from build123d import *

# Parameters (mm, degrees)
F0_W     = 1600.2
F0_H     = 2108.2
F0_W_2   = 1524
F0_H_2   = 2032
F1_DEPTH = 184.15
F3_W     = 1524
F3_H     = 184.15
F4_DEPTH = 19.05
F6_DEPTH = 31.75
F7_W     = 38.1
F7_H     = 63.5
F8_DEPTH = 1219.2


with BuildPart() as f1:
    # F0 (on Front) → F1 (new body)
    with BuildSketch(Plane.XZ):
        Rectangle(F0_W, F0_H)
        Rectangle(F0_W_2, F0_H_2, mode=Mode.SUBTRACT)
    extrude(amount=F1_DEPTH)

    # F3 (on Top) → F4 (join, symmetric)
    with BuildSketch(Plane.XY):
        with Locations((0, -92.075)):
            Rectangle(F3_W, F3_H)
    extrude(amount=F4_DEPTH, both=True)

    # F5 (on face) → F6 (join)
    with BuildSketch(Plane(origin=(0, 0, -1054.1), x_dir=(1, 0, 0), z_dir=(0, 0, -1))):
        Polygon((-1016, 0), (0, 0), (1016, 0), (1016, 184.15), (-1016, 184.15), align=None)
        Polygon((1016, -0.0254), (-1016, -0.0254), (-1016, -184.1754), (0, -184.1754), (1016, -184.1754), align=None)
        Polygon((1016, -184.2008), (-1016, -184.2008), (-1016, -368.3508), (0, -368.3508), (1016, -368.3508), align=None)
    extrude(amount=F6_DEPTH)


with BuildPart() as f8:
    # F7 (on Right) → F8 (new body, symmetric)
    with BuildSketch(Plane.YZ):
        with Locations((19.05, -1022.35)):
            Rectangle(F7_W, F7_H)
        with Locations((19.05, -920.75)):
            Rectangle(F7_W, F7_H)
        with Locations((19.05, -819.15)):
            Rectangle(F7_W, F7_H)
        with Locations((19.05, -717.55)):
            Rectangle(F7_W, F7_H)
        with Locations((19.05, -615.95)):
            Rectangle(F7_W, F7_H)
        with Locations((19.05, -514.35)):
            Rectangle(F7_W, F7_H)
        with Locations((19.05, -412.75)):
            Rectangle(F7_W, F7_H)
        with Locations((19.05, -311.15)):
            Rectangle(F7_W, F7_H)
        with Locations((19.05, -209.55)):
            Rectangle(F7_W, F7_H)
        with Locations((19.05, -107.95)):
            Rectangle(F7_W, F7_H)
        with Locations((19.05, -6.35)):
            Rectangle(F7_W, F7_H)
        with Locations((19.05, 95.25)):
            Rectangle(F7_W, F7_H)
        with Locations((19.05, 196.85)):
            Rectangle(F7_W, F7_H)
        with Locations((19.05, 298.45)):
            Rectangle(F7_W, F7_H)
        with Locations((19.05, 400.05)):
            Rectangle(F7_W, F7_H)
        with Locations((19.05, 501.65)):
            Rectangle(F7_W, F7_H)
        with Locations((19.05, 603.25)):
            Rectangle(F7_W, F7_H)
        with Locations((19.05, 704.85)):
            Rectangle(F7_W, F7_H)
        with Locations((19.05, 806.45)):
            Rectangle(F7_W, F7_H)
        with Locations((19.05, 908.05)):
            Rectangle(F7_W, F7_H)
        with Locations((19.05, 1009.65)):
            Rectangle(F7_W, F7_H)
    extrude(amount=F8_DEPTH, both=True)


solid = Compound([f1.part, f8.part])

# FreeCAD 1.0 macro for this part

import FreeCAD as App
import Part
import Sketcher

V = App.Vector
Q = App.Units.Quantity

doc = App.newDocument("Part")
body = doc.addObject("PartDesign::Body", "Body")
body.AllowCompound = True

sketch1 = doc.addObject("Sketcher::SketchObject", "Sketch")
body.addObject(sketch1)
sketch1.AttachmentSupport = (doc.XZ_Plane, [""])
sketch1.MapMode = "FlatFace"
sketch1.addGeometry(Part.LineSegment(V(-800.1, 1054.1, 0), V(-800.1, -1054.1, 0)), False)
sketch1.addGeometry(Part.LineSegment(V(-800.1, -1054.1, 0), V(800.1, -1054.1, 0)), False)
sketch1.addGeometry(Part.LineSegment(V(800.1, -1054.1, 0), V(800.1, 1054.1, 0)), False)
sketch1.addGeometry(Part.LineSegment(V(800.1, 1054.1, 0), V(-800.1, 1054.1, 0)), False)
sketch1.addGeometry(Part.LineSegment(V(762, -1016, 0), V(-762, -1016, 0)), False)
sketch1.addGeometry(Part.LineSegment(V(-762, -1016, 0), V(-762, 1016, 0)), False)
sketch1.addGeometry(Part.LineSegment(V(-762, 1016, 0), V(762, 1016, 0)), False)
sketch1.addGeometry(Part.LineSegment(V(762, 1016, 0), V(762, -1016, 0)), False)
sketch1.addConstraint(Sketcher.Constraint("Coincident", 0, 2, 1, 1))
sketch1.addConstraint(Sketcher.Constraint("Coincident", 1, 2, 2, 1))
sketch1.addConstraint(Sketcher.Constraint("Coincident", 2, 2, 3, 1))
sketch1.addConstraint(Sketcher.Constraint("Coincident", 3, 2, 0, 1))
sketch1.addConstraint(Sketcher.Constraint("Coincident", 4, 2, 5, 1))
sketch1.addConstraint(Sketcher.Constraint("Coincident", 5, 2, 6, 1))
sketch1.addConstraint(Sketcher.Constraint("Coincident", 6, 2, 7, 1))
sketch1.addConstraint(Sketcher.Constraint("Coincident", 7, 2, 4, 1))
sketch1.addConstraint(Sketcher.Constraint("Vertical", 0))
sketch1.addConstraint(Sketcher.Constraint("Horizontal", 1))
sketch1.addConstraint(Sketcher.Constraint("Vertical", 2))
sketch1.addConstraint(Sketcher.Constraint("Horizontal", 3))
sketch1.addConstraint(Sketcher.Constraint("Horizontal", 4))
sketch1.addConstraint(Sketcher.Constraint("Vertical", 5))
sketch1.addConstraint(Sketcher.Constraint("Horizontal", 6))
sketch1.addConstraint(Sketcher.Constraint("Vertical", 7))
sketch1.addConstraint(Sketcher.Constraint("Symmetric", 0, 2, 2, 2, -1, 1))
sketch1.addConstraint(Sketcher.Constraint("Symmetric", 4, 2, 6, 2, -1, 1))
sketch1.addConstraint(Sketcher.Constraint("DistanceX", 1, 1, 1, 2, Q("63 in")))
sketch1.addConstraint(Sketcher.Constraint("DistanceX", 4, 2, 4, 1, Q("60 in")))
sketch1.addConstraint(Sketcher.Constraint("DistanceY", 0, 2, 0, 1, Q("83 in")))
sketch1.addConstraint(Sketcher.Constraint("DistanceY", 5, 1, 5, 2, Q("80 in")))
pad1 = doc.addObject("PartDesign::Pad", "Pad")
body.addObject(pad1)
pad1.Profile = sketch1
pad1.Length = Q("7.25 in")

sketch2 = doc.addObject("Sketcher::SketchObject", "Sketch001")
body.addObject(sketch2)
sketch2.AttachmentSupport = (doc.XY_Plane, [""])
sketch2.MapMode = "FlatFace"
sketch2.addGeometry(Part.LineSegment(V(-762, 0, 0), V(-762, -184.15, 0)), False)
sketch2.addGeometry(Part.LineSegment(V(-762, -184.15, 0), V(762, -184.15, 0)), False)
sketch2.addGeometry(Part.LineSegment(V(762, -184.15, 0), V(762, 0, 0)), False)
sketch2.addGeometry(Part.LineSegment(V(762, 0, 0), V(-762, 0, 0)), False)
sketch2.addConstraint(Sketcher.Constraint("Coincident", 0, 2, 1, 1))
sketch2.addConstraint(Sketcher.Constraint("Coincident", 1, 2, 2, 1))
sketch2.addConstraint(Sketcher.Constraint("Coincident", 2, 2, 3, 1))
sketch2.addConstraint(Sketcher.Constraint("Coincident", 3, 2, 0, 1))
sketch2.addConstraint(Sketcher.Constraint("Vertical", 0))
sketch2.addConstraint(Sketcher.Constraint("Horizontal", 1))
sketch2.addConstraint(Sketcher.Constraint("Vertical", 2))
sketch2.addConstraint(Sketcher.Constraint("Horizontal", 3))
sketch2.addConstraint(Sketcher.Constraint("Symmetric", 2, 2, 3, 2, -1, 1))
sketch2.addConstraint(Sketcher.Constraint("DistanceX", 1, 1, 1, 2, Q("60 in")))
sketch2.addConstraint(Sketcher.Constraint("DistanceY", 0, 2, 0, 1, Q("7.25 in")))
pad2 = doc.addObject("PartDesign::Pad", "Pad001")
body.addObject(pad2)
pad2.Profile = sketch2
pad2.Length = Q("1.5 in")
pad2.Midplane = True

sketch3 = doc.addObject("Sketcher::SketchObject", "Sketch002")
body.addObject(sketch3)
sketch3.AttachmentSupport = (doc.XY_Plane, [""])
sketch3.MapMode = "FlatFace"
sketch3.AttachmentOffset = App.Placement(V(0, 0, -41.5 * 25.4), App.Rotation())
sketch3.addGeometry(Part.LineSegment(V(-1016, 0, 0), V(1016, 0, 0)), False)
sketch3.addGeometry(Part.LineSegment(V(1016, 0, 0), V(1016, -184.15, 0)), False)
sketch3.addGeometry(Part.LineSegment(V(1016, -184.15, 0), V(-1016, -184.15, 0)), False)
sketch3.addGeometry(Part.LineSegment(V(-1016, -184.15, 0), V(-1016, 0, 0)), False)
sketch3.addGeometry(Part.LineSegment(V(1016, 0.0254, 0), V(-1016, 0.0254, 0)), False)
sketch3.addGeometry(Part.LineSegment(V(-1016, 0.0254, 0), V(-1016, 184.1754, 0)), False)
sketch3.addGeometry(Part.LineSegment(V(-1016, 184.1754, 0), V(1016, 184.1754, 0)), False)
sketch3.addGeometry(Part.LineSegment(V(1016, 184.1754, 0), V(1016, 0.0254, 0)), False)
sketch3.addGeometry(Part.LineSegment(V(1016, 184.2008, 0), V(-1016, 184.2008, 0)), False)
sketch3.addGeometry(Part.LineSegment(V(-1016, 184.2008, 0), V(-1016, 368.3508, 0)), False)
sketch3.addGeometry(Part.LineSegment(V(-1016, 368.3508, 0), V(1016, 368.3508, 0)), False)
sketch3.addGeometry(Part.LineSegment(V(1016, 368.3508, 0), V(1016, 184.2008, 0)), False)
sketch3.addConstraint(Sketcher.Constraint("Coincident", 0, 2, 1, 1))
sketch3.addConstraint(Sketcher.Constraint("Coincident", 1, 2, 2, 1))
sketch3.addConstraint(Sketcher.Constraint("Coincident", 2, 2, 3, 1))
sketch3.addConstraint(Sketcher.Constraint("Coincident", 3, 2, 0, 1))
sketch3.addConstraint(Sketcher.Constraint("Coincident", 4, 2, 5, 1))
sketch3.addConstraint(Sketcher.Constraint("Coincident", 5, 2, 6, 1))
sketch3.addConstraint(Sketcher.Constraint("Coincident", 6, 2, 7, 1))
sketch3.addConstraint(Sketcher.Constraint("Coincident", 7, 2, 4, 1))
sketch3.addConstraint(Sketcher.Constraint("Coincident", 8, 2, 9, 1))
sketch3.addConstraint(Sketcher.Constraint("Coincident", 9, 2, 10, 1))
sketch3.addConstraint(Sketcher.Constraint("Coincident", 10, 2, 11, 1))
sketch3.addConstraint(Sketcher.Constraint("Coincident", 11, 2, 8, 1))
sketch3.addConstraint(Sketcher.Constraint("Horizontal", 0))
sketch3.addConstraint(Sketcher.Constraint("Vertical", 1))
sketch3.addConstraint(Sketcher.Constraint("Horizontal", 2))
sketch3.addConstraint(Sketcher.Constraint("Vertical", 3))
sketch3.addConstraint(Sketcher.Constraint("Horizontal", 4))
sketch3.addConstraint(Sketcher.Constraint("Vertical", 5))
sketch3.addConstraint(Sketcher.Constraint("Horizontal", 6))
sketch3.addConstraint(Sketcher.Constraint("Vertical", 7))
sketch3.addConstraint(Sketcher.Constraint("Horizontal", 8))
sketch3.addConstraint(Sketcher.Constraint("Vertical", 9))
sketch3.addConstraint(Sketcher.Constraint("Horizontal", 10))
sketch3.addConstraint(Sketcher.Constraint("Vertical", 11))
sketch3.addConstraint(Sketcher.Constraint("Symmetric", 0, 2, 3, 2, -1, 1))
sketch3.addConstraint(Sketcher.Constraint("Vertical", 3, 2, 4, 2))
sketch3.addConstraint(Sketcher.Constraint("Vertical", 1, 2, 6, 2))
sketch3.addConstraint(Sketcher.Constraint("Vertical", 5, 2, 8, 2))
sketch3.addConstraint(Sketcher.Constraint("Vertical", 7, 2, 10, 2))
sketch3.addConstraint(Sketcher.Constraint("Equal", 3, 5))
sketch3.addConstraint(Sketcher.Constraint("Equal", 7, 9))
sketch3.addConstraint(Sketcher.Constraint("DistanceX", 0, 1, 0, 2, Q("80 in")))
sketch3.addConstraint(Sketcher.Constraint("DistanceY", 1, 2, 1, 1, Q("7.25 in")))
sketch3.addConstraint(Sketcher.Constraint("DistanceY", -1, 1, 4, 2, Q("0.001 in")))
sketch3.addConstraint(Sketcher.Constraint("DistanceY", -1, 1, 8, 2, Q("7.252 in")))
pad3 = doc.addObject("PartDesign::Pad", "Pad002")
body.addObject(pad3)
pad3.Profile = sketch3
pad3.Length = Q("1.25 in")
pad3.Reversed = True
body2 = doc.addObject("PartDesign::Body", "Body001")
body2.AllowCompound = True

sketch4 = doc.addObject("Sketcher::SketchObject", "Sketch003")
body2.addObject(sketch4)
sketch4.AttachmentSupport = (doc.getObject("YZ_Plane001"), [""])
sketch4.MapMode = "FlatFace"
sketch4.addGeometry(Part.LineSegment(V(0, -990.6, 0), V(0, -1054.1, 0)), False)
sketch4.addGeometry(Part.LineSegment(V(0, -1054.1, 0), V(38.1, -1054.1, 0)), False)
sketch4.addGeometry(Part.LineSegment(V(38.1, -1054.1, 0), V(38.1, -990.6, 0)), False)
sketch4.addGeometry(Part.LineSegment(V(38.1, -990.6, 0), V(0, -990.6, 0)), False)
sketch4.addGeometry(Part.LineSegment(V(0, -889, 0), V(0, -952.5, 0)), False)
sketch4.addGeometry(Part.LineSegment(V(0, -952.5, 0), V(38.1, -952.5, 0)), False)
sketch4.addGeometry(Part.LineSegment(V(38.1, -952.5, 0), V(38.1, -889, 0)), False)
sketch4.addGeometry(Part.LineSegment(V(38.1, -889, 0), V(0, -889, 0)), False)
sketch4.addGeometry(Part.LineSegment(V(0, -787.4, 0), V(0, -850.9, 0)), False)
sketch4.addGeometry(Part.LineSegment(V(0, -850.9, 0), V(38.1, -850.9, 0)), False)
sketch4.addGeometry(Part.LineSegment(V(38.1, -850.9, 0), V(38.1, -787.4, 0)), False)
sketch4.addGeometry(Part.LineSegment(V(38.1, -787.4, 0), V(0, -787.4, 0)), False)
sketch4.addGeometry(Part.LineSegment(V(0, -685.8, 0), V(0, -749.3, 0)), False)
sketch4.addGeometry(Part.LineSegment(V(0, -749.3, 0), V(38.1, -749.3, 0)), False)
sketch4.addGeometry(Part.LineSegment(V(38.1, -749.3, 0), V(38.1, -685.8, 0)), False)
sketch4.addGeometry(Part.LineSegment(V(38.1, -685.8, 0), V(0, -685.8, 0)), False)
sketch4.addGeometry(Part.LineSegment(V(0, -584.2, 0), V(0, -647.7, 0)), False)
sketch4.addGeometry(Part.LineSegment(V(0, -647.7, 0), V(38.1, -647.7, 0)), False)
sketch4.addGeometry(Part.LineSegment(V(38.1, -647.7, 0), V(38.1, -584.2, 0)), False)
sketch4.addGeometry(Part.LineSegment(V(38.1, -584.2, 0), V(0, -584.2, 0)), False)
sketch4.addGeometry(Part.LineSegment(V(0, -482.6, 0), V(0, -546.1, 0)), False)
sketch4.addGeometry(Part.LineSegment(V(0, -546.1, 0), V(38.1, -546.1, 0)), False)
sketch4.addGeometry(Part.LineSegment(V(38.1, -546.1, 0), V(38.1, -482.6, 0)), False)
sketch4.addGeometry(Part.LineSegment(V(38.1, -482.6, 0), V(0, -482.6, 0)), False)
sketch4.addGeometry(Part.LineSegment(V(0, -381, 0), V(0, -444.5, 0)), False)
sketch4.addGeometry(Part.LineSegment(V(0, -444.5, 0), V(38.1, -444.5, 0)), False)
sketch4.addGeometry(Part.LineSegment(V(38.1, -444.5, 0), V(38.1, -381, 0)), False)
sketch4.addGeometry(Part.LineSegment(V(38.1, -381, 0), V(0, -381, 0)), False)
sketch4.addGeometry(Part.LineSegment(V(0, -279.4, 0), V(0, -342.9, 0)), False)
sketch4.addGeometry(Part.LineSegment(V(0, -342.9, 0), V(38.1, -342.9, 0)), False)
sketch4.addGeometry(Part.LineSegment(V(38.1, -342.9, 0), V(38.1, -279.4, 0)), False)
sketch4.addGeometry(Part.LineSegment(V(38.1, -279.4, 0), V(0, -279.4, 0)), False)
sketch4.addGeometry(Part.LineSegment(V(0, -177.8, 0), V(0, -241.3, 0)), False)
sketch4.addGeometry(Part.LineSegment(V(0, -241.3, 0), V(38.1, -241.3, 0)), False)
sketch4.addGeometry(Part.LineSegment(V(38.1, -241.3, 0), V(38.1, -177.8, 0)), False)
sketch4.addGeometry(Part.LineSegment(V(38.1, -177.8, 0), V(0, -177.8, 0)), False)
sketch4.addGeometry(Part.LineSegment(V(0, -76.2, 0), V(0, -139.7, 0)), False)
sketch4.addGeometry(Part.LineSegment(V(0, -139.7, 0), V(38.1, -139.7, 0)), False)
sketch4.addGeometry(Part.LineSegment(V(38.1, -139.7, 0), V(38.1, -76.2, 0)), False)
sketch4.addGeometry(Part.LineSegment(V(38.1, -76.2, 0), V(0, -76.2, 0)), False)
sketch4.addGeometry(Part.LineSegment(V(0, 25.4, 0), V(0, -38.1, 0)), False)
sketch4.addGeometry(Part.LineSegment(V(0, -38.1, 0), V(38.1, -38.1, 0)), False)
sketch4.addGeometry(Part.LineSegment(V(38.1, -38.1, 0), V(38.1, 25.4, 0)), False)
sketch4.addGeometry(Part.LineSegment(V(38.1, 25.4, 0), V(0, 25.4, 0)), False)
sketch4.addGeometry(Part.LineSegment(V(0, 127, 0), V(0, 63.5, 0)), False)
sketch4.addGeometry(Part.LineSegment(V(0, 63.5, 0), V(38.1, 63.5, 0)), False)
sketch4.addGeometry(Part.LineSegment(V(38.1, 63.5, 0), V(38.1, 127, 0)), False)
sketch4.addGeometry(Part.LineSegment(V(38.1, 127, 0), V(0, 127, 0)), False)
sketch4.addGeometry(Part.LineSegment(V(0, 228.6, 0), V(0, 165.1, 0)), False)
sketch4.addGeometry(Part.LineSegment(V(0, 165.1, 0), V(38.1, 165.1, 0)), False)
sketch4.addGeometry(Part.LineSegment(V(38.1, 165.1, 0), V(38.1, 228.6, 0)), False)
sketch4.addGeometry(Part.LineSegment(V(38.1, 228.6, 0), V(0, 228.6, 0)), False)
sketch4.addGeometry(Part.LineSegment(V(0, 330.2, 0), V(0, 266.7, 0)), False)
sketch4.addGeometry(Part.LineSegment(V(0, 266.7, 0), V(38.1, 266.7, 0)), False)
sketch4.addGeometry(Part.LineSegment(V(38.1, 266.7, 0), V(38.1, 330.2, 0)), False)
sketch4.addGeometry(Part.LineSegment(V(38.1, 330.2, 0), V(0, 330.2, 0)), False)
sketch4.addGeometry(Part.LineSegment(V(0, 431.8, 0), V(0, 368.3, 0)), False)
sketch4.addGeometry(Part.LineSegment(V(0, 368.3, 0), V(38.1, 368.3, 0)), False)
sketch4.addGeometry(Part.LineSegment(V(38.1, 368.3, 0), V(38.1, 431.8, 0)), False)
sketch4.addGeometry(Part.LineSegment(V(38.1, 431.8, 0), V(0, 431.8, 0)), False)
sketch4.addGeometry(Part.LineSegment(V(0, 533.4, 0), V(0, 469.9, 0)), False)
sketch4.addGeometry(Part.LineSegment(V(0, 469.9, 0), V(38.1, 469.9, 0)), False)
sketch4.addGeometry(Part.LineSegment(V(38.1, 469.9, 0), V(38.1, 533.4, 0)), False)
sketch4.addGeometry(Part.LineSegment(V(38.1, 533.4, 0), V(0, 533.4, 0)), False)
sketch4.addGeometry(Part.LineSegment(V(0, 635, 0), V(0, 571.5, 0)), False)
sketch4.addGeometry(Part.LineSegment(V(0, 571.5, 0), V(38.1, 571.5, 0)), False)
sketch4.addGeometry(Part.LineSegment(V(38.1, 571.5, 0), V(38.1, 635, 0)), False)
sketch4.addGeometry(Part.LineSegment(V(38.1, 635, 0), V(0, 635, 0)), False)
sketch4.addGeometry(Part.LineSegment(V(0, 736.6, 0), V(0, 673.1, 0)), False)
sketch4.addGeometry(Part.LineSegment(V(0, 673.1, 0), V(38.1, 673.1, 0)), False)
sketch4.addGeometry(Part.LineSegment(V(38.1, 673.1, 0), V(38.1, 736.6, 0)), False)
sketch4.addGeometry(Part.LineSegment(V(38.1, 736.6, 0), V(0, 736.6, 0)), False)
sketch4.addGeometry(Part.LineSegment(V(0, 838.2, 0), V(0, 774.7, 0)), False)
sketch4.addGeometry(Part.LineSegment(V(0, 774.7, 0), V(38.1, 774.7, 0)), False)
sketch4.addGeometry(Part.LineSegment(V(38.1, 774.7, 0), V(38.1, 838.2, 0)), False)
sketch4.addGeometry(Part.LineSegment(V(38.1, 838.2, 0), V(0, 838.2, 0)), False)
sketch4.addGeometry(Part.LineSegment(V(0, 939.8, 0), V(0, 876.3, 0)), False)
sketch4.addGeometry(Part.LineSegment(V(0, 876.3, 0), V(38.1, 876.3, 0)), False)
sketch4.addGeometry(Part.LineSegment(V(38.1, 876.3, 0), V(38.1, 939.8, 0)), False)
sketch4.addGeometry(Part.LineSegment(V(38.1, 939.8, 0), V(0, 939.8, 0)), False)
sketch4.addGeometry(Part.LineSegment(V(0, 1041.4, 0), V(0, 977.9, 0)), False)
sketch4.addGeometry(Part.LineSegment(V(0, 977.9, 0), V(38.1, 977.9, 0)), False)
sketch4.addGeometry(Part.LineSegment(V(38.1, 977.9, 0), V(38.1, 1041.4, 0)), False)
sketch4.addGeometry(Part.LineSegment(V(38.1, 1041.4, 0), V(0, 1041.4, 0)), False)
sketch4.addConstraint(Sketcher.Constraint("Coincident", 0, 2, 1, 1))
sketch4.addConstraint(Sketcher.Constraint("Coincident", 1, 2, 2, 1))
sketch4.addConstraint(Sketcher.Constraint("Coincident", 2, 2, 3, 1))
sketch4.addConstraint(Sketcher.Constraint("Coincident", 3, 2, 0, 1))
sketch4.addConstraint(Sketcher.Constraint("Coincident", 4, 2, 5, 1))
sketch4.addConstraint(Sketcher.Constraint("Coincident", 5, 2, 6, 1))
sketch4.addConstraint(Sketcher.Constraint("Coincident", 6, 2, 7, 1))
sketch4.addConstraint(Sketcher.Constraint("Coincident", 7, 2, 4, 1))
sketch4.addConstraint(Sketcher.Constraint("Coincident", 8, 2, 9, 1))
sketch4.addConstraint(Sketcher.Constraint("Coincident", 9, 2, 10, 1))
sketch4.addConstraint(Sketcher.Constraint("Coincident", 10, 2, 11, 1))
sketch4.addConstraint(Sketcher.Constraint("Coincident", 11, 2, 8, 1))
sketch4.addConstraint(Sketcher.Constraint("Coincident", 12, 2, 13, 1))
sketch4.addConstraint(Sketcher.Constraint("Coincident", 13, 2, 14, 1))
sketch4.addConstraint(Sketcher.Constraint("Coincident", 14, 2, 15, 1))
sketch4.addConstraint(Sketcher.Constraint("Coincident", 15, 2, 12, 1))
sketch4.addConstraint(Sketcher.Constraint("Coincident", 16, 2, 17, 1))
sketch4.addConstraint(Sketcher.Constraint("Coincident", 17, 2, 18, 1))
sketch4.addConstraint(Sketcher.Constraint("Coincident", 18, 2, 19, 1))
sketch4.addConstraint(Sketcher.Constraint("Coincident", 19, 2, 16, 1))
sketch4.addConstraint(Sketcher.Constraint("Coincident", 20, 2, 21, 1))
sketch4.addConstraint(Sketcher.Constraint("Coincident", 21, 2, 22, 1))
sketch4.addConstraint(Sketcher.Constraint("Coincident", 22, 2, 23, 1))
sketch4.addConstraint(Sketcher.Constraint("Coincident", 23, 2, 20, 1))
sketch4.addConstraint(Sketcher.Constraint("Coincident", 24, 2, 25, 1))
sketch4.addConstraint(Sketcher.Constraint("Coincident", 25, 2, 26, 1))
sketch4.addConstraint(Sketcher.Constraint("Coincident", 26, 2, 27, 1))
sketch4.addConstraint(Sketcher.Constraint("Coincident", 27, 2, 24, 1))
sketch4.addConstraint(Sketcher.Constraint("Coincident", 28, 2, 29, 1))
sketch4.addConstraint(Sketcher.Constraint("Coincident", 29, 2, 30, 1))
sketch4.addConstraint(Sketcher.Constraint("Coincident", 30, 2, 31, 1))
sketch4.addConstraint(Sketcher.Constraint("Coincident", 31, 2, 28, 1))
sketch4.addConstraint(Sketcher.Constraint("Coincident", 32, 2, 33, 1))
sketch4.addConstraint(Sketcher.Constraint("Coincident", 33, 2, 34, 1))
sketch4.addConstraint(Sketcher.Constraint("Coincident", 34, 2, 35, 1))
sketch4.addConstraint(Sketcher.Constraint("Coincident", 35, 2, 32, 1))
sketch4.addConstraint(Sketcher.Constraint("Coincident", 36, 2, 37, 1))
sketch4.addConstraint(Sketcher.Constraint("Coincident", 37, 2, 38, 1))
sketch4.addConstraint(Sketcher.Constraint("Coincident", 38, 2, 39, 1))
sketch4.addConstraint(Sketcher.Constraint("Coincident", 39, 2, 36, 1))
sketch4.addConstraint(Sketcher.Constraint("Coincident", 40, 2, 41, 1))
sketch4.addConstraint(Sketcher.Constraint("Coincident", 41, 2, 42, 1))
sketch4.addConstraint(Sketcher.Constraint("Coincident", 42, 2, 43, 1))
sketch4.addConstraint(Sketcher.Constraint("Coincident", 43, 2, 40, 1))
sketch4.addConstraint(Sketcher.Constraint("Coincident", 44, 2, 45, 1))
sketch4.addConstraint(Sketcher.Constraint("Coincident", 45, 2, 46, 1))
sketch4.addConstraint(Sketcher.Constraint("Coincident", 46, 2, 47, 1))
sketch4.addConstraint(Sketcher.Constraint("Coincident", 47, 2, 44, 1))
sketch4.addConstraint(Sketcher.Constraint("Coincident", 48, 2, 49, 1))
sketch4.addConstraint(Sketcher.Constraint("Coincident", 49, 2, 50, 1))
sketch4.addConstraint(Sketcher.Constraint("Coincident", 50, 2, 51, 1))
sketch4.addConstraint(Sketcher.Constraint("Coincident", 51, 2, 48, 1))
sketch4.addConstraint(Sketcher.Constraint("Coincident", 52, 2, 53, 1))
sketch4.addConstraint(Sketcher.Constraint("Coincident", 53, 2, 54, 1))
sketch4.addConstraint(Sketcher.Constraint("Coincident", 54, 2, 55, 1))
sketch4.addConstraint(Sketcher.Constraint("Coincident", 55, 2, 52, 1))
sketch4.addConstraint(Sketcher.Constraint("Coincident", 56, 2, 57, 1))
sketch4.addConstraint(Sketcher.Constraint("Coincident", 57, 2, 58, 1))
sketch4.addConstraint(Sketcher.Constraint("Coincident", 58, 2, 59, 1))
sketch4.addConstraint(Sketcher.Constraint("Coincident", 59, 2, 56, 1))
sketch4.addConstraint(Sketcher.Constraint("Coincident", 60, 2, 61, 1))
sketch4.addConstraint(Sketcher.Constraint("Coincident", 61, 2, 62, 1))
sketch4.addConstraint(Sketcher.Constraint("Coincident", 62, 2, 63, 1))
sketch4.addConstraint(Sketcher.Constraint("Coincident", 63, 2, 60, 1))
sketch4.addConstraint(Sketcher.Constraint("Coincident", 64, 2, 65, 1))
sketch4.addConstraint(Sketcher.Constraint("Coincident", 65, 2, 66, 1))
sketch4.addConstraint(Sketcher.Constraint("Coincident", 66, 2, 67, 1))
sketch4.addConstraint(Sketcher.Constraint("Coincident", 67, 2, 64, 1))
sketch4.addConstraint(Sketcher.Constraint("Coincident", 68, 2, 69, 1))
sketch4.addConstraint(Sketcher.Constraint("Coincident", 69, 2, 70, 1))
sketch4.addConstraint(Sketcher.Constraint("Coincident", 70, 2, 71, 1))
sketch4.addConstraint(Sketcher.Constraint("Coincident", 71, 2, 68, 1))
sketch4.addConstraint(Sketcher.Constraint("Coincident", 72, 2, 73, 1))
sketch4.addConstraint(Sketcher.Constraint("Coincident", 73, 2, 74, 1))
sketch4.addConstraint(Sketcher.Constraint("Coincident", 74, 2, 75, 1))
sketch4.addConstraint(Sketcher.Constraint("Coincident", 75, 2, 72, 1))
sketch4.addConstraint(Sketcher.Constraint("Coincident", 76, 2, 77, 1))
sketch4.addConstraint(Sketcher.Constraint("Coincident", 77, 2, 78, 1))
sketch4.addConstraint(Sketcher.Constraint("Coincident", 78, 2, 79, 1))
sketch4.addConstraint(Sketcher.Constraint("Coincident", 79, 2, 76, 1))
sketch4.addConstraint(Sketcher.Constraint("Coincident", 80, 2, 81, 1))
sketch4.addConstraint(Sketcher.Constraint("Coincident", 81, 2, 82, 1))
sketch4.addConstraint(Sketcher.Constraint("Coincident", 82, 2, 83, 1))
sketch4.addConstraint(Sketcher.Constraint("Coincident", 83, 2, 80, 1))
sketch4.addConstraint(Sketcher.Constraint("Vertical", 0))
sketch4.addConstraint(Sketcher.Constraint("Horizontal", 1))
sketch4.addConstraint(Sketcher.Constraint("Vertical", 2))
sketch4.addConstraint(Sketcher.Constraint("Horizontal", 3))
sketch4.addConstraint(Sketcher.Constraint("Vertical", 4))
sketch4.addConstraint(Sketcher.Constraint("Horizontal", 5))
sketch4.addConstraint(Sketcher.Constraint("Vertical", 6))
sketch4.addConstraint(Sketcher.Constraint("Horizontal", 7))
sketch4.addConstraint(Sketcher.Constraint("Vertical", 8))
sketch4.addConstraint(Sketcher.Constraint("Horizontal", 9))
sketch4.addConstraint(Sketcher.Constraint("Vertical", 10))
sketch4.addConstraint(Sketcher.Constraint("Horizontal", 11))
sketch4.addConstraint(Sketcher.Constraint("Vertical", 12))
sketch4.addConstraint(Sketcher.Constraint("Horizontal", 13))
sketch4.addConstraint(Sketcher.Constraint("Vertical", 14))
sketch4.addConstraint(Sketcher.Constraint("Horizontal", 15))
sketch4.addConstraint(Sketcher.Constraint("Vertical", 16))
sketch4.addConstraint(Sketcher.Constraint("Horizontal", 17))
sketch4.addConstraint(Sketcher.Constraint("Vertical", 18))
sketch4.addConstraint(Sketcher.Constraint("Horizontal", 19))
sketch4.addConstraint(Sketcher.Constraint("Vertical", 20))
sketch4.addConstraint(Sketcher.Constraint("Horizontal", 21))
sketch4.addConstraint(Sketcher.Constraint("Vertical", 22))
sketch4.addConstraint(Sketcher.Constraint("Horizontal", 23))
sketch4.addConstraint(Sketcher.Constraint("Vertical", 24))
sketch4.addConstraint(Sketcher.Constraint("Horizontal", 25))
sketch4.addConstraint(Sketcher.Constraint("Vertical", 26))
sketch4.addConstraint(Sketcher.Constraint("Horizontal", 27))
sketch4.addConstraint(Sketcher.Constraint("Vertical", 28))
sketch4.addConstraint(Sketcher.Constraint("Horizontal", 29))
sketch4.addConstraint(Sketcher.Constraint("Vertical", 30))
sketch4.addConstraint(Sketcher.Constraint("Horizontal", 31))
sketch4.addConstraint(Sketcher.Constraint("Vertical", 32))
sketch4.addConstraint(Sketcher.Constraint("Horizontal", 33))
sketch4.addConstraint(Sketcher.Constraint("Vertical", 34))
sketch4.addConstraint(Sketcher.Constraint("Horizontal", 35))
sketch4.addConstraint(Sketcher.Constraint("Vertical", 36))
sketch4.addConstraint(Sketcher.Constraint("Horizontal", 37))
sketch4.addConstraint(Sketcher.Constraint("Vertical", 38))
sketch4.addConstraint(Sketcher.Constraint("Horizontal", 39))
sketch4.addConstraint(Sketcher.Constraint("Vertical", 40))
sketch4.addConstraint(Sketcher.Constraint("Horizontal", 41))
sketch4.addConstraint(Sketcher.Constraint("Vertical", 42))
sketch4.addConstraint(Sketcher.Constraint("Horizontal", 43))
sketch4.addConstraint(Sketcher.Constraint("Vertical", 44))
sketch4.addConstraint(Sketcher.Constraint("Horizontal", 45))
sketch4.addConstraint(Sketcher.Constraint("Vertical", 46))
sketch4.addConstraint(Sketcher.Constraint("Horizontal", 47))
sketch4.addConstraint(Sketcher.Constraint("Vertical", 48))
sketch4.addConstraint(Sketcher.Constraint("Horizontal", 49))
sketch4.addConstraint(Sketcher.Constraint("Vertical", 50))
sketch4.addConstraint(Sketcher.Constraint("Horizontal", 51))
sketch4.addConstraint(Sketcher.Constraint("Vertical", 52))
sketch4.addConstraint(Sketcher.Constraint("Horizontal", 53))
sketch4.addConstraint(Sketcher.Constraint("Vertical", 54))
sketch4.addConstraint(Sketcher.Constraint("Horizontal", 55))
sketch4.addConstraint(Sketcher.Constraint("Vertical", 56))
sketch4.addConstraint(Sketcher.Constraint("Horizontal", 57))
sketch4.addConstraint(Sketcher.Constraint("Vertical", 58))
sketch4.addConstraint(Sketcher.Constraint("Horizontal", 59))
sketch4.addConstraint(Sketcher.Constraint("Vertical", 60))
sketch4.addConstraint(Sketcher.Constraint("Horizontal", 61))
sketch4.addConstraint(Sketcher.Constraint("Vertical", 62))
sketch4.addConstraint(Sketcher.Constraint("Horizontal", 63))
sketch4.addConstraint(Sketcher.Constraint("Vertical", 64))
sketch4.addConstraint(Sketcher.Constraint("Horizontal", 65))
sketch4.addConstraint(Sketcher.Constraint("Vertical", 66))
sketch4.addConstraint(Sketcher.Constraint("Horizontal", 67))
sketch4.addConstraint(Sketcher.Constraint("Vertical", 68))
sketch4.addConstraint(Sketcher.Constraint("Horizontal", 69))
sketch4.addConstraint(Sketcher.Constraint("Vertical", 70))
sketch4.addConstraint(Sketcher.Constraint("Horizontal", 71))
sketch4.addConstraint(Sketcher.Constraint("Vertical", 72))
sketch4.addConstraint(Sketcher.Constraint("Horizontal", 73))
sketch4.addConstraint(Sketcher.Constraint("Vertical", 74))
sketch4.addConstraint(Sketcher.Constraint("Horizontal", 75))
sketch4.addConstraint(Sketcher.Constraint("Vertical", 76))
sketch4.addConstraint(Sketcher.Constraint("Horizontal", 77))
sketch4.addConstraint(Sketcher.Constraint("Vertical", 78))
sketch4.addConstraint(Sketcher.Constraint("Horizontal", 79))
sketch4.addConstraint(Sketcher.Constraint("Vertical", 80))
sketch4.addConstraint(Sketcher.Constraint("Horizontal", 81))
sketch4.addConstraint(Sketcher.Constraint("Vertical", 82))
sketch4.addConstraint(Sketcher.Constraint("Horizontal", 83))
sketch4.addConstraint(Sketcher.Constraint("PointOnObject", 0, 2, -2))
sketch4.addConstraint(Sketcher.Constraint("PointOnObject", 4, 2, -2))
sketch4.addConstraint(Sketcher.Constraint("PointOnObject", 8, 2, -2))
sketch4.addConstraint(Sketcher.Constraint("PointOnObject", 12, 2, -2))
sketch4.addConstraint(Sketcher.Constraint("PointOnObject", 16, 2, -2))
sketch4.addConstraint(Sketcher.Constraint("PointOnObject", 20, 2, -2))
sketch4.addConstraint(Sketcher.Constraint("PointOnObject", 24, 2, -2))
sketch4.addConstraint(Sketcher.Constraint("PointOnObject", 28, 2, -2))
sketch4.addConstraint(Sketcher.Constraint("PointOnObject", 32, 2, -2))
sketch4.addConstraint(Sketcher.Constraint("PointOnObject", 36, 2, -2))
sketch4.addConstraint(Sketcher.Constraint("PointOnObject", 40, 2, -2))
sketch4.addConstraint(Sketcher.Constraint("PointOnObject", 44, 2, -2))
sketch4.addConstraint(Sketcher.Constraint("PointOnObject", 48, 2, -2))
sketch4.addConstraint(Sketcher.Constraint("PointOnObject", 52, 2, -2))
sketch4.addConstraint(Sketcher.Constraint("PointOnObject", 56, 2, -2))
sketch4.addConstraint(Sketcher.Constraint("PointOnObject", 60, 2, -2))
sketch4.addConstraint(Sketcher.Constraint("PointOnObject", 64, 2, -2))
sketch4.addConstraint(Sketcher.Constraint("PointOnObject", 68, 2, -2))
sketch4.addConstraint(Sketcher.Constraint("PointOnObject", 72, 2, -2))
sketch4.addConstraint(Sketcher.Constraint("PointOnObject", 76, 2, -2))
sketch4.addConstraint(Sketcher.Constraint("PointOnObject", 80, 2, -2))
sketch4.addConstraint(Sketcher.Constraint("Vertical", 2, 2, 5, 2))
sketch4.addConstraint(Sketcher.Constraint("Vertical", 6, 2, 9, 2))
sketch4.addConstraint(Sketcher.Constraint("Vertical", 10, 2, 13, 2))
sketch4.addConstraint(Sketcher.Constraint("Vertical", 14, 2, 17, 2))
sketch4.addConstraint(Sketcher.Constraint("Vertical", 18, 2, 21, 2))
sketch4.addConstraint(Sketcher.Constraint("Vertical", 22, 2, 25, 2))
sketch4.addConstraint(Sketcher.Constraint("Vertical", 26, 2, 29, 2))
sketch4.addConstraint(Sketcher.Constraint("Vertical", 30, 2, 33, 2))
sketch4.addConstraint(Sketcher.Constraint("Vertical", 34, 2, 37, 2))
sketch4.addConstraint(Sketcher.Constraint("Vertical", 38, 2, 41, 2))
sketch4.addConstraint(Sketcher.Constraint("Vertical", 42, 2, 45, 2))
sketch4.addConstraint(Sketcher.Constraint("Vertical", 46, 2, 49, 2))
sketch4.addConstraint(Sketcher.Constraint("Vertical", 50, 2, 53, 2))
sketch4.addConstraint(Sketcher.Constraint("Vertical", 54, 2, 57, 2))
sketch4.addConstraint(Sketcher.Constraint("Vertical", 58, 2, 61, 2))
sketch4.addConstraint(Sketcher.Constraint("Vertical", 62, 2, 65, 2))
sketch4.addConstraint(Sketcher.Constraint("Vertical", 66, 2, 69, 2))
sketch4.addConstraint(Sketcher.Constraint("Vertical", 70, 2, 73, 2))
sketch4.addConstraint(Sketcher.Constraint("Vertical", 74, 2, 77, 2))
sketch4.addConstraint(Sketcher.Constraint("Vertical", 78, 2, 81, 2))
sketch4.addConstraint(Sketcher.Constraint("Equal", 2, 4))
sketch4.addConstraint(Sketcher.Constraint("Equal", 6, 8))
sketch4.addConstraint(Sketcher.Constraint("Equal", 10, 12))
sketch4.addConstraint(Sketcher.Constraint("Equal", 14, 16))
sketch4.addConstraint(Sketcher.Constraint("Equal", 18, 20))
sketch4.addConstraint(Sketcher.Constraint("Equal", 22, 24))
sketch4.addConstraint(Sketcher.Constraint("Equal", 26, 28))
sketch4.addConstraint(Sketcher.Constraint("Equal", 30, 32))
sketch4.addConstraint(Sketcher.Constraint("Equal", 34, 36))
sketch4.addConstraint(Sketcher.Constraint("Equal", 38, 40))
sketch4.addConstraint(Sketcher.Constraint("Equal", 42, 44))
sketch4.addConstraint(Sketcher.Constraint("Equal", 46, 48))
sketch4.addConstraint(Sketcher.Constraint("Equal", 50, 52))
sketch4.addConstraint(Sketcher.Constraint("Equal", 54, 56))
sketch4.addConstraint(Sketcher.Constraint("Equal", 58, 60))
sketch4.addConstraint(Sketcher.Constraint("Equal", 62, 64))
sketch4.addConstraint(Sketcher.Constraint("Equal", 66, 68))
sketch4.addConstraint(Sketcher.Constraint("Equal", 70, 72))
sketch4.addConstraint(Sketcher.Constraint("Equal", 74, 76))
sketch4.addConstraint(Sketcher.Constraint("Equal", 78, 80))
sketch4.addConstraint(Sketcher.Constraint("DistanceX", 1, 1, 1, 2, Q("1.5 in")))
sketch4.addConstraint(Sketcher.Constraint("DistanceY", 0, 2, 0, 1, Q("2.5 in")))
sketch4.addConstraint(Sketcher.Constraint("DistanceY", 2, 2, -1, 1, Q("39 in")))
sketch4.addConstraint(Sketcher.Constraint("DistanceY", 6, 2, -1, 1, Q("35 in")))
sketch4.addConstraint(Sketcher.Constraint("DistanceY", 10, 2, -1, 1, Q("31 in")))
sketch4.addConstraint(Sketcher.Constraint("DistanceY", 14, 2, -1, 1, Q("27 in")))
sketch4.addConstraint(Sketcher.Constraint("DistanceY", 18, 2, -1, 1, Q("23 in")))
sketch4.addConstraint(Sketcher.Constraint("DistanceY", 22, 2, -1, 1, Q("19 in")))
sketch4.addConstraint(Sketcher.Constraint("DistanceY", 26, 2, -1, 1, Q("15 in")))
sketch4.addConstraint(Sketcher.Constraint("DistanceY", 30, 2, -1, 1, Q("11 in")))
sketch4.addConstraint(Sketcher.Constraint("DistanceY", 34, 2, -1, 1, Q("7 in")))
sketch4.addConstraint(Sketcher.Constraint("DistanceY", 38, 2, -1, 1, Q("3 in")))
sketch4.addConstraint(Sketcher.Constraint("DistanceY", -1, 1, 42, 2, Q("1 in")))
sketch4.addConstraint(Sketcher.Constraint("DistanceY", -1, 1, 46, 2, Q("5 in")))
sketch4.addConstraint(Sketcher.Constraint("DistanceY", -1, 1, 50, 2, Q("9 in")))
sketch4.addConstraint(Sketcher.Constraint("DistanceY", -1, 1, 54, 2, Q("13 in")))
sketch4.addConstraint(Sketcher.Constraint("DistanceY", -1, 1, 58, 2, Q("17 in")))
sketch4.addConstraint(Sketcher.Constraint("DistanceY", -1, 1, 62, 2, Q("21 in")))
sketch4.addConstraint(Sketcher.Constraint("DistanceY", -1, 1, 66, 2, Q("25 in")))
sketch4.addConstraint(Sketcher.Constraint("DistanceY", -1, 1, 70, 2, Q("29 in")))
sketch4.addConstraint(Sketcher.Constraint("DistanceY", -1, 1, 74, 2, Q("33 in")))
sketch4.addConstraint(Sketcher.Constraint("DistanceY", -1, 1, 78, 2, Q("37 in")))
sketch4.addConstraint(Sketcher.Constraint("DistanceY", -1, 1, 82, 2, Q("41 in")))
pad4 = doc.addObject("PartDesign::Pad", "Pad003")
body2.addObject(pad4)
pad4.Profile = sketch4
pad4.Length = Q("96 in")
pad4.Midplane = True

doc.recompute()
